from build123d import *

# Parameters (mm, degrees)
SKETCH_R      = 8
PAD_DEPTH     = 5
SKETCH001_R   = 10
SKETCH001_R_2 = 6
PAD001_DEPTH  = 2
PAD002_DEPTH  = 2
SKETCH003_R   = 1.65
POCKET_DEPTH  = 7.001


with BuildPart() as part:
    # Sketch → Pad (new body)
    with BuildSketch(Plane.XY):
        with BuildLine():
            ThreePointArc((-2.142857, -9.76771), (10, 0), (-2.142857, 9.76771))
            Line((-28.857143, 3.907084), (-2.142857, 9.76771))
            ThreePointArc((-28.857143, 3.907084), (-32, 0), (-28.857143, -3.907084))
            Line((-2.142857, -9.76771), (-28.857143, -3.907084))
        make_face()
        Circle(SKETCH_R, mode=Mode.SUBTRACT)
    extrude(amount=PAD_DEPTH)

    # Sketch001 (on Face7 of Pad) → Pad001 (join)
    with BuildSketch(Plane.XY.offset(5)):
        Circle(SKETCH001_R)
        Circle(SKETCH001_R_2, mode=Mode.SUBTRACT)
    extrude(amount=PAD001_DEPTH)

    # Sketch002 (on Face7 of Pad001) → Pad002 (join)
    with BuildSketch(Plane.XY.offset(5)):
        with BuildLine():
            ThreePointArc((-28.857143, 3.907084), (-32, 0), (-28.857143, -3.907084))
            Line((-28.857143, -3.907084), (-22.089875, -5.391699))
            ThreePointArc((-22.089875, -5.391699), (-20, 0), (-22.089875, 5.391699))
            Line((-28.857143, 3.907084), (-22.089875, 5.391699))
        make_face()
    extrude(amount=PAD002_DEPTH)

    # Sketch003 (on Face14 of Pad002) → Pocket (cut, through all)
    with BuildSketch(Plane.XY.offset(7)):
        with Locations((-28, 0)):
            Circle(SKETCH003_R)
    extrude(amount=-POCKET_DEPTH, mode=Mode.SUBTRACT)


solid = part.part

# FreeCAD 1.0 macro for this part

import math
import FreeCAD as App
import Part
import Sketcher

V = App.Vector

doc = App.newDocument("Part")
params = doc.addObject("Spreadsheet::Sheet", "Params")
for row, (alias, value) in enumerate([
    ("sketch1_diameter", "16 mm"),
    ("sketch1_radius", "10 mm"),
    ("sketch1_radius2", "4 mm"),
    ("pad1_length", "5 mm"),
    ("sketch2_diameter", "20 mm"),
    ("sketch2_diameter2", "12 mm"),
    ("pad2_length", "2 mm"),
    ("sketch3_radius", "4 mm"),
    ("sketch3_radius2", "7.999999 mm"),
    ("pad3_length", "2 mm"),
    ("sketch4_diameter", "3.3 mm"),
], start=1):
    params.set(f"A{row}", alias)
    params.set(f"B{row}", "=" + value)
    params.setAlias(f"B{row}", alias)

body = doc.addObject("PartDesign::Body", "Body")

# Sketch on XY plane
sketch1 = body.newObject("Sketcher::SketchObject", "Sketch")
sketch1.AttachmentSupport = (doc.getObject("XY_Plane"), [""])
sketch1.MapMode = "FlatFace"
sketch1.addGeometry(Part.ArcOfCircle(Part.Circle(V(0, 0, 0), V(0, 0, 1), 10), math.radians(-102), math.radians(102)), False)
sketch1.addGeometry(Part.LineSegment(V(-2.1, 9.8, 0), V(-28.9, 3.9, 0)), False)
sketch1.addGeometry(Part.ArcOfCircle(Part.Circle(V(-28, 0, 0), V(0, 0, 1), 4), math.radians(102), math.radians(258)), False)
sketch1.addGeometry(Part.LineSegment(V(-28.9, -3.9, 0), V(-2.1, -9.8, 0)), False)
sketch1.addGeometry(Part.Circle(V(0, 0, 0), V(0, 0, 1), 8), False)
sketch1.addConstraint(Sketcher.Constraint("Tangent", 0, 2, 1, 1))
sketch1.addConstraint(Sketcher.Constraint("Tangent", 1, 2, 2, 1))
sketch1.addConstraint(Sketcher.Constraint("Tangent", 2, 2, 3, 1))
sketch1.addConstraint(Sketcher.Constraint("Tangent", 3, 2, 0, 1))
sketch1.addConstraint(Sketcher.Constraint("Coincident", 0, 3, -1, 1))
sketch1.addConstraint(Sketcher.Constraint("Coincident", 4, 3, -1, 1))
sketch1.addConstraint(Sketcher.Constraint("PointOnObject", 2, 3, -1))
sketch1.addConstraint(Sketcher.Constraint("Diameter", 4, 16.0))
sketch1.addConstraint(Sketcher.Constraint("Radius", 0, 10.0))
sketch1.addConstraint(Sketcher.Constraint("Radius", 2, 4.0))
sketch1.addConstraint(Sketcher.Constraint("DistanceX", 2, 3, -1, 1, 28.0))
sketch1.setExpression("Constraints[7]", "Params.sketch1_diameter")
sketch1.setExpression("Constraints[8]", "Params.sketch1_radius")
sketch1.setExpression("Constraints[9]", "Params.sketch1_radius2")
pad1 = body.newObject("PartDesign::Pad", "Pad")
pad1.Profile = sketch1
pad1.setExpression("Length", "Params.pad1_length")

# Sketch on XY plane
sketch2 = body.newObject("Sketcher::SketchObject", "Sketch001")
sketch2.AttachmentSupport = (doc.getObject("XY_Plane"), [""])
sketch2.MapMode = "FlatFace"
sketch2.AttachmentOffset = App.Placement(V(0, 0, 5), App.Rotation())
sketch2.addGeometry(Part.Circle(V(0, 0, 0), V(0, 0, 1), 10), False)
sketch2.addGeometry(Part.Circle(V(0, 0, 0), V(0, 0, 1), 6), False)
sketch2.addConstraint(Sketcher.Constraint("Coincident", 0, 3, -1, 1))
sketch2.addConstraint(Sketcher.Constraint("Coincident", 1, 3, -1, 1))
sketch2.addConstraint(Sketcher.Constraint("Diameter", 0, 20.0))
sketch2.addConstraint(Sketcher.Constraint("Diameter", 1, 12.0))
sketch2.setExpression("Constraints[2]", "Params.sketch2_diameter")
sketch2.setExpression("Constraints[3]", "Params.sketch2_diameter2")
pad2 = body.newObject("PartDesign::Pad", "Pad001")
pad2.Profile = sketch2
pad2.setExpression("Length", "Params.pad2_length")

# Sketch on XY plane
sketch3 = body.newObject("Sketcher::SketchObject", "Sketch002")
sketch3.AttachmentSupport = (doc.getObject("XY_Plane"), [""])
sketch3.MapMode = "FlatFace"
sketch3.AttachmentOffset = App.Placement(V(0, 0, 5), App.Rotation())
sketch3.addGeometry(Part.ArcOfCircle(Part.Circle(V(-28, 0, 0), V(0, 0, 1), 4), math.radians(102), math.radians(258)), False)
sketch3.addGeometry(Part.LineSegment(V(-28.9, -3.9, 0), V(-22.1, -5.4, 0)), False)
sketch3.addGeometry(Part.ArcOfCircle(Part.Circle(V(-28, 0, 0), V(0, 0, 1), 8), math.radians(-42), math.radians(42)), False)
sketch3.addGeometry(Part.LineSegment(V(-22.1, 5.4, 0), V(-28.9, 3.9, 0)), False)
sketch3.addConstraint(Sketcher.Constraint("Tangent", 0, 2, 1, 1))
sketch3.addConstraint(Sketcher.Constraint("Coincident", 1, 2, 2, 1))
sketch3.addConstraint(Sketcher.Constraint("Coincident", 2, 2, 3, 1))
sketch3.addConstraint(Sketcher.Constraint("Tangent", 3, 2, 0, 1))
sketch3.addConstraint(Sketcher.Constraint("Coincident", 2, 3, 0, 3))
sketch3.addConstraint(Sketcher.Constraint("Symmetric", 1, 2, 2, 2, -1))
sketch3.addConstraint(Sketcher.Constraint("Radius", 0, 4.0))
sketch3.addConstraint(Sketcher.Constraint("Radius", 2, 7.999999))
sketch3.addConstraint(Sketcher.Constraint("DistanceX", 0, 3, -1, 1, 28.0))
sketch3.addConstraint(Sketcher.Constraint("DistanceY", 1, 2, -1, 1, 5.391699))
sketch3.setExpression("Constraints[6]", "Params.sketch3_radius")
sketch3.setExpression("Constraints[7]", "Params.sketch3_radius2")
pad3 = body.newObject("PartDesign::Pad", "Pad002")
pad3.Profile = sketch3
pad3.setExpression("Length", "Params.pad3_length")

# Sketch on XY plane
sketch4 = body.newObject("Sketcher::SketchObject", "Sketch003")
sketch4.AttachmentSupport = (doc.getObject("XY_Plane"), [""])
sketch4.MapMode = "FlatFace"
sketch4.AttachmentOffset = App.Placement(V(0, 0, 7), App.Rotation())
sketch4.addGeometry(Part.Circle(V(-28, 0, 0), V(0, 0, 1), 1.6), False)
sketch4.addConstraint(Sketcher.Constraint("PointOnObject", 0, 3, -1))
sketch4.addConstraint(Sketcher.Constraint("Diameter", 0, 3.3))
sketch4.addConstraint(Sketcher.Constraint("DistanceX", 0, 3, -1, 1, 28.0))
sketch4.setExpression("Constraints[1]", "Params.sketch4_diameter")
pocket1 = body.newObject("PartDesign::Pocket", "Pocket")
pocket1.Profile = sketch4
pocket1.Type = "ThroughAll"

doc.recompute()
